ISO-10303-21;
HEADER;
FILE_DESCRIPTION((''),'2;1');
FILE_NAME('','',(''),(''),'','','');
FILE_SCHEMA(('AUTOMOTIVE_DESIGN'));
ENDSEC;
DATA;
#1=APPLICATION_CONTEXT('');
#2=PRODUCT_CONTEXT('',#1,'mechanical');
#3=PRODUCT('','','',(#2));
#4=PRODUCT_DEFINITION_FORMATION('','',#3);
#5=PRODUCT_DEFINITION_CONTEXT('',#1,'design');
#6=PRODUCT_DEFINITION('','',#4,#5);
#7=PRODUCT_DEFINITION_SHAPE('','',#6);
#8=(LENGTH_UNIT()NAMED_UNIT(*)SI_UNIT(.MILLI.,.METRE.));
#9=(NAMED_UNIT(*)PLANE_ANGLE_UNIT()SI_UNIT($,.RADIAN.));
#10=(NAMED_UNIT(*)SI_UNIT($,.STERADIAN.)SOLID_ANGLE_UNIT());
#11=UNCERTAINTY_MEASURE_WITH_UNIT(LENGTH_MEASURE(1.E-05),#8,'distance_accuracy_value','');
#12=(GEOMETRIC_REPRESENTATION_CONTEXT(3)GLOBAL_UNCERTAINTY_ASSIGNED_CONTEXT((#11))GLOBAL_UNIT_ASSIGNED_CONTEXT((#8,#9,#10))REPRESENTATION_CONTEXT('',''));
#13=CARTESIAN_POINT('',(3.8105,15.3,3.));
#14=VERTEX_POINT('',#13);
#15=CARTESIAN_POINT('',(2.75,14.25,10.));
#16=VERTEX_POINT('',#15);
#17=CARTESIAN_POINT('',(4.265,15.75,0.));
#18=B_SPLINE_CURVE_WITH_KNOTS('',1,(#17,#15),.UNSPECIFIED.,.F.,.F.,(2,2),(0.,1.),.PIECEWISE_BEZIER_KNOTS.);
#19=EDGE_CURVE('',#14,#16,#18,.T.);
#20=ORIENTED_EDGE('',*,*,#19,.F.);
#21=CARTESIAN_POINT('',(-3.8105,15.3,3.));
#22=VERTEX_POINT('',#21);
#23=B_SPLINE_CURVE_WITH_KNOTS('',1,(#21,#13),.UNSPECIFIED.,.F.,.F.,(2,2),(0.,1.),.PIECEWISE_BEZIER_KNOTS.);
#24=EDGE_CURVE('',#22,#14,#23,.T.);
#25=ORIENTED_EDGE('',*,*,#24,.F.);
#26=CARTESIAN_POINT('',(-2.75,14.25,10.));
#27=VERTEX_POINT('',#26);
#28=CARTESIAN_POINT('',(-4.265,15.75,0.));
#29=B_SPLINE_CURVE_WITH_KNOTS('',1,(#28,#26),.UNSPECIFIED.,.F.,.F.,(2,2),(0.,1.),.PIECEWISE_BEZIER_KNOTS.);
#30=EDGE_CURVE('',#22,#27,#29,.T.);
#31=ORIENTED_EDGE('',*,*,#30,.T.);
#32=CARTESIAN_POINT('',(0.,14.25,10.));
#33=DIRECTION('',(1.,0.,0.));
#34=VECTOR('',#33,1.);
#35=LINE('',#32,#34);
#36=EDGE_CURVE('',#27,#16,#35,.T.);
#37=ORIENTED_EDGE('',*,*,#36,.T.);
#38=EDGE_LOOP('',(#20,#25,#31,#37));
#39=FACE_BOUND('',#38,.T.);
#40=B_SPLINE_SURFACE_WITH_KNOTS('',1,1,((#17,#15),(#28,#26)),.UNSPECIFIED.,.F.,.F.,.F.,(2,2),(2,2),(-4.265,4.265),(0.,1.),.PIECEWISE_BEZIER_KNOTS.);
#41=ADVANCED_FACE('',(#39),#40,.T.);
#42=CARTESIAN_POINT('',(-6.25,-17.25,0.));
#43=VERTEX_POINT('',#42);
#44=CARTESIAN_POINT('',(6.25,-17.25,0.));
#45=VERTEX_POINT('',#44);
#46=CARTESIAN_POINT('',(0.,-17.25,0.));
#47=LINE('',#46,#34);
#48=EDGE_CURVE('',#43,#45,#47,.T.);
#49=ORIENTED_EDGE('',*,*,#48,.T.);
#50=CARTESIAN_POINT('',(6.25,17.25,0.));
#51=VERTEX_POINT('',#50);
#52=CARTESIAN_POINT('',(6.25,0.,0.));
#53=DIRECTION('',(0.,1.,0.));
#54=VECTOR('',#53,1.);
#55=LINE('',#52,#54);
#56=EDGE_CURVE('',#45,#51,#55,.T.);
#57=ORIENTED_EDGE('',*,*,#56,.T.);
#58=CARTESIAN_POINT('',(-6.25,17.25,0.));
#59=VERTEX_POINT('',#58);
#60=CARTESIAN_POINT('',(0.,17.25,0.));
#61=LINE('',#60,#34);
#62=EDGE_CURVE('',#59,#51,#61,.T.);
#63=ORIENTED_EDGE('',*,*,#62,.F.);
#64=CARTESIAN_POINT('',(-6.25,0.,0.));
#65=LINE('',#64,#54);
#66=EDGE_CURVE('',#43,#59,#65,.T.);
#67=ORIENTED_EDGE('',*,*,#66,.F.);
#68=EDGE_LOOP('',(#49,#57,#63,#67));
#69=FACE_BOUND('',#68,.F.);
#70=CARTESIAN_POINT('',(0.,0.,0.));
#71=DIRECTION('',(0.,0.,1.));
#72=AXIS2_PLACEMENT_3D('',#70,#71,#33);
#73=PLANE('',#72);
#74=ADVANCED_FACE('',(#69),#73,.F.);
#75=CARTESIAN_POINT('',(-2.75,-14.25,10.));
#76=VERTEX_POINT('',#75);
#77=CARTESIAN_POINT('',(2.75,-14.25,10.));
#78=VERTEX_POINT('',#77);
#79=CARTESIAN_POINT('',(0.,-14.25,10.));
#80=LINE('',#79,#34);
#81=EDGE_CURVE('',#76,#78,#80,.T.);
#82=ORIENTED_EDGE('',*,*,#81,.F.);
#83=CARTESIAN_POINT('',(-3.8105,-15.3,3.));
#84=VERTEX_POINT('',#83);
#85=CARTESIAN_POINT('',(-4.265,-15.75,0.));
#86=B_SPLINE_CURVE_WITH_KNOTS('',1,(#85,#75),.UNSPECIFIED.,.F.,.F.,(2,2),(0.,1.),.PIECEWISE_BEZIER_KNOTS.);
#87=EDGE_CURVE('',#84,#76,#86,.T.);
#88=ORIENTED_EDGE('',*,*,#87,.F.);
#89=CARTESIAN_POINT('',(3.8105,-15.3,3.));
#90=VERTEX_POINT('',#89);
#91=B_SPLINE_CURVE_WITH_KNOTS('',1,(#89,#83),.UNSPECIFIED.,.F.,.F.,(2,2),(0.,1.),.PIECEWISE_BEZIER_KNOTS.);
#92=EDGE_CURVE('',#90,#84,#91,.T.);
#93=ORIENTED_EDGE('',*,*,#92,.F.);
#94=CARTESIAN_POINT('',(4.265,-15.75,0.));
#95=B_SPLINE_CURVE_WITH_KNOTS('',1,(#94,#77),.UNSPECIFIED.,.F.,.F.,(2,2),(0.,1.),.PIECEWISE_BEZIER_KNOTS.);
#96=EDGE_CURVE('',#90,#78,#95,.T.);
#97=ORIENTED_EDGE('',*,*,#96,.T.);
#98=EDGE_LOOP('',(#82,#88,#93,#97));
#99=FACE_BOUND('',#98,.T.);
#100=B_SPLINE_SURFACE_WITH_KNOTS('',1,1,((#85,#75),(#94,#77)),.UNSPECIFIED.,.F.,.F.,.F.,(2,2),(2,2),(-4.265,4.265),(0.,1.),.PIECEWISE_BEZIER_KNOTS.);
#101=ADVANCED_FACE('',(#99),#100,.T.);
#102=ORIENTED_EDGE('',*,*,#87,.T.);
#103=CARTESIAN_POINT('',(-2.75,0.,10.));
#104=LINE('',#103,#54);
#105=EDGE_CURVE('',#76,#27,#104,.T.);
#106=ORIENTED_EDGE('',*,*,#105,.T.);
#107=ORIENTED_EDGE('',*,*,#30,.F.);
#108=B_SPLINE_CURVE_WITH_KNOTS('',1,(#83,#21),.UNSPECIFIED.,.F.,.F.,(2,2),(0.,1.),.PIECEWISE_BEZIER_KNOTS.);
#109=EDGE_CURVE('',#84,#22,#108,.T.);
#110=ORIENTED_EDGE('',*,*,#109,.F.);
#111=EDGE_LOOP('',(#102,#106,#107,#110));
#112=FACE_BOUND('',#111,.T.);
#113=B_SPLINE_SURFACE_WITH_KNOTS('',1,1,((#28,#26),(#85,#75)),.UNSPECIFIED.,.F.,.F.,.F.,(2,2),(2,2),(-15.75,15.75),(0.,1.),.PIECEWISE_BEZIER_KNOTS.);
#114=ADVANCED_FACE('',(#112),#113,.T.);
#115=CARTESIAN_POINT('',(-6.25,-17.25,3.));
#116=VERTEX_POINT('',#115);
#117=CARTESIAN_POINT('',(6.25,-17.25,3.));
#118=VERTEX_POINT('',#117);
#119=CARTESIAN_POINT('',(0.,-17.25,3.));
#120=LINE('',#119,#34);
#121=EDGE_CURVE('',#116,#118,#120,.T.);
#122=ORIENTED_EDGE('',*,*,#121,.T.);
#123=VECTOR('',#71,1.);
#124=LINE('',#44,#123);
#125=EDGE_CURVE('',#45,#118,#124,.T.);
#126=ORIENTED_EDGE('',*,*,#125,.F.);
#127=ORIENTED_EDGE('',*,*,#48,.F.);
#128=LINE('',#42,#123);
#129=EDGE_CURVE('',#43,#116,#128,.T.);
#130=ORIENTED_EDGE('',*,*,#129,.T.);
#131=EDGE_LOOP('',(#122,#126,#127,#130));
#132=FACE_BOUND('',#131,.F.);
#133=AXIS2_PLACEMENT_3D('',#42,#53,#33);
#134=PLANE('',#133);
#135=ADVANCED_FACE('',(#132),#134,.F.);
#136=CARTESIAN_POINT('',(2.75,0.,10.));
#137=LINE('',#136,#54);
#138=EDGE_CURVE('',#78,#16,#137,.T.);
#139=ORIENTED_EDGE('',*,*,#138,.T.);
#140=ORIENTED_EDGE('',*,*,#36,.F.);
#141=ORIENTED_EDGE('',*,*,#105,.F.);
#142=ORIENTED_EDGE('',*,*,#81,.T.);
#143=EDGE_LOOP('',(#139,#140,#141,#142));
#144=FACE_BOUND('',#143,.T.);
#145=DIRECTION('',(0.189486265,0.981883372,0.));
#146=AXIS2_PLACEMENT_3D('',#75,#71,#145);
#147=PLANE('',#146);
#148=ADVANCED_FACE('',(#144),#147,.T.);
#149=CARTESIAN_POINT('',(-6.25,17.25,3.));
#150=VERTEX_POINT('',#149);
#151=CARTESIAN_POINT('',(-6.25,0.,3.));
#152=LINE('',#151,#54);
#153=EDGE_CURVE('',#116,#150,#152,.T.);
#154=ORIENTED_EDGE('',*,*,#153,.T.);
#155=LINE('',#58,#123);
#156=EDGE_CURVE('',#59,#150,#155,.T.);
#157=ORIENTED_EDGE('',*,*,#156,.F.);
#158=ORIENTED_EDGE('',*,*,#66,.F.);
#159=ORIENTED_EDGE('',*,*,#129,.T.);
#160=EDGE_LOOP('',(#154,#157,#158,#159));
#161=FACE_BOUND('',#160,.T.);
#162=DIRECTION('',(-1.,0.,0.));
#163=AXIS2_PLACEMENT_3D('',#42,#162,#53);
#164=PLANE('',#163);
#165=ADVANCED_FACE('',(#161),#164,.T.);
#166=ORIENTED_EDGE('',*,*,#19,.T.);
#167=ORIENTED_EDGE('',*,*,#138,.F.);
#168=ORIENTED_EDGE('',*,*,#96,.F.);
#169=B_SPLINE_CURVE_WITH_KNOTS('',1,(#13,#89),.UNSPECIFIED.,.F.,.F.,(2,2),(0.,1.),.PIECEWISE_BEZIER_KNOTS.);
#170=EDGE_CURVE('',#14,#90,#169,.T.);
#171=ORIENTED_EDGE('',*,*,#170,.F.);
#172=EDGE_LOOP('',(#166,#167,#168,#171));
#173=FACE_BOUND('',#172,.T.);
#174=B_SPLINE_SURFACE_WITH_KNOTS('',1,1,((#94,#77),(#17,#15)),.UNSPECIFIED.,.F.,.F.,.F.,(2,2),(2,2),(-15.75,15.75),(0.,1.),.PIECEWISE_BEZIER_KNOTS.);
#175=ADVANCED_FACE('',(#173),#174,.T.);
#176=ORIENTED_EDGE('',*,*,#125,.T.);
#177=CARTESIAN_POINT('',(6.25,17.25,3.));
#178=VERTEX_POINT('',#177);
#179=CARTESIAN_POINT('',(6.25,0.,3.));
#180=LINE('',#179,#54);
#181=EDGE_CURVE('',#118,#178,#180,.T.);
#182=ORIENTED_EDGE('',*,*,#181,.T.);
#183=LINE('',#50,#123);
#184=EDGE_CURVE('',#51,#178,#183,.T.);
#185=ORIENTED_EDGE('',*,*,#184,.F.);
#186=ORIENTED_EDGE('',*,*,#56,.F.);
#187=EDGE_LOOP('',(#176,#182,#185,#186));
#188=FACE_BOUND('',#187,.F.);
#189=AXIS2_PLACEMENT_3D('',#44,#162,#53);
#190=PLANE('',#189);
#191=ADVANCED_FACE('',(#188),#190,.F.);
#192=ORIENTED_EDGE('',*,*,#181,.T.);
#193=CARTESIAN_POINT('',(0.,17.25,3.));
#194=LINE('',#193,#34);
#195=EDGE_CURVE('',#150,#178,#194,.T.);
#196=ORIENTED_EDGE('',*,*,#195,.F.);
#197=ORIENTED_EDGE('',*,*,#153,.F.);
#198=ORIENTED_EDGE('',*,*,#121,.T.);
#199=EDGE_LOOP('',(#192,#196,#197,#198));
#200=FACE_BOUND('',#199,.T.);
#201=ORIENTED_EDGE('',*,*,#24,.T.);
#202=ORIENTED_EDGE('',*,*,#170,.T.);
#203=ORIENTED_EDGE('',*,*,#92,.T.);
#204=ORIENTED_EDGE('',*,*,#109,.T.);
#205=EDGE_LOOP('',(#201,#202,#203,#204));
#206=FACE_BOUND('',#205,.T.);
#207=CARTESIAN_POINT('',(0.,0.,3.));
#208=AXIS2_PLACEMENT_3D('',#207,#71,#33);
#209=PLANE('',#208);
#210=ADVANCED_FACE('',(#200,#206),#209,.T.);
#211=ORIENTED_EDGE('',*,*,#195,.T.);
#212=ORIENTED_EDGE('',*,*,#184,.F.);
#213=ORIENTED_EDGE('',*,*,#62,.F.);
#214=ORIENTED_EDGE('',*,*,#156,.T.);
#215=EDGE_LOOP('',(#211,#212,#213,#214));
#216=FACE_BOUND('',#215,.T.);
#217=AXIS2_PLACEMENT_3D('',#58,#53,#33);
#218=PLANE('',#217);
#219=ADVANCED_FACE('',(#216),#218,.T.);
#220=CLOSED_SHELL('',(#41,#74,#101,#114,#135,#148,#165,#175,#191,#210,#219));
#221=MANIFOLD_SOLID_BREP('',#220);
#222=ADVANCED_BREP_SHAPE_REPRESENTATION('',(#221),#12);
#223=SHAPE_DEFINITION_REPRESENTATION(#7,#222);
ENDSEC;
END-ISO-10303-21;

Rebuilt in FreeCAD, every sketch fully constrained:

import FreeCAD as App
import Part
import Sketcher


def add_polygon(sketch, points):
    """Adds a closed chain of lines whose ends are joined by coincident constraints."""
    first, n = sketch.GeometryCount, len(points)
    for a, b in zip(points, points[1:] + points[:1]):
        sketch.addGeometry(Part.LineSegment(App.Vector(*a, 0), App.Vector(*b, 0)), False)
    for i in range(n):
        sketch.addConstraint(Sketcher.Constraint("Coincident", first + i, 2, first + (i + 1) % n, 1))

doc = App.newDocument("Part")
params = doc.addObject("Spreadsheet::Sheet", "Params")
for row, (alias, value) in enumerate([
    ("sketch1_height", "31.5 mm"),
    ("sketch1_width", "8.53 mm"),
    ("sketch2_width", "5.5 mm"),
    ("sketch2_height", "28.5 mm"),
    ("sketch3_width", "12.5 mm"),
    ("sketch3_height", "34.5 mm"),
    ("pad1_length", "3 mm"),
], start=1):
    params.set(f"A{row}", alias)
    params.set(f"B{row}", "=" + value)
    params.setAlias(f"B{row}", alias)

body = doc.addObject("PartDesign::Body", "Body")

# Sketch on XY plane
sketch1 = body.newObject("Sketcher::SketchObject", "Sketch")
sketch1.AttachmentSupport = (doc.getObject("XY_Plane"), [""])
sketch1.MapMode = "FlatFace"
add_polygon(sketch1, [(-4, 16), (-4, -16), (4, -16), (4, 16)])  # lines 0-3
sketch1.addConstraint([
    Sketcher.Constraint("Vertical", 0),
    Sketcher.Constraint("Horizontal", 1),
    Sketcher.Constraint("Vertical", 2),
    Sketcher.Constraint("Horizontal", 3),
    Sketcher.Constraint("Symmetric", 0, 2, 2, 2, -1, 1),
    Sketcher.Constraint("DistanceY", 0, 2, 0, 1, 31.5),
    Sketcher.Constraint("DistanceX", 1, 1, 1, 2, 8.53),
])
sketch1.setExpression("Constraints[9]", "Params.sketch1_height")
sketch1.setExpression("Constraints[10]", "Params.sketch1_width")

# Sketch on XY plane
sketch2 = body.newObject("Sketcher::SketchObject", "Sketch001")
sketch2.AttachmentSupport = (doc.getObject("XY_Plane"), [""])
sketch2.MapMode = "FlatFace"
sketch2.AttachmentOffset = App.Placement(App.Vector(0, 0, 10), App.Rotation())
add_polygon(sketch2, [(-3, 14), (-3, -14), (3, -14), (3, 14)])  # lines 0-3
sketch2.addConstraint([
    Sketcher.Constraint("Vertical", 0),
    Sketcher.Constraint("Horizontal", 1),
    Sketcher.Constraint("Vertical", 2),
    Sketcher.Constraint("Horizontal", 3),
    Sketcher.Constraint("Symmetric", 0, 2, 2, 2, -1, 1),
    Sketcher.Constraint("DistanceX", 1, 1, 1, 2, 5.5),
    Sketcher.Constraint("DistanceY", 0, 2, 0, 1, 28.5),
])
sketch2.setExpression("Constraints[9]", "Params.sketch2_width")
sketch2.setExpression("Constraints[10]", "Params.sketch2_height")

additiveloft = body.newObject("PartDesign::AdditiveLoft", "AdditiveLoft")
additiveloft.Profile = sketch1
additiveloft.Sections = [sketch2]

# Sketch on XY plane
sketch3 = body.newObject("Sketcher::SketchObject", "Sketch002")
sketch3.AttachmentSupport = (doc.getObject("XY_Plane"), [""])
sketch3.MapMode = "FlatFace"
add_polygon(sketch3, [(-6, 17), (-6, -17), (6, -17), (6, 17)])  # lines 0-3
sketch3.addConstraint([
    Sketcher.Constraint("Vertical", 0),
    Sketcher.Constraint("Horizontal", 1),
    Sketcher.Constraint("Vertical", 2),
    Sketcher.Constraint("Horizontal", 3),
    Sketcher.Constraint("Symmetric", 0, 2, 2, 2, -1, 1),
    Sketcher.Constraint("DistanceX", 1, 1, 1, 2, 12.5),
    Sketcher.Constraint("DistanceY", 0, 2, 0, 1, 34.5),
])
sketch3.setExpression("Constraints[9]", "Params.sketch3_width")
sketch3.setExpression("Constraints[10]", "Params.sketch3_height")
pad1 = body.newObject("PartDesign::Pad", "Pad")
pad1.Profile = sketch3
pad1.setExpression("Length", "Params.pad1_length")

doc.recompute()
